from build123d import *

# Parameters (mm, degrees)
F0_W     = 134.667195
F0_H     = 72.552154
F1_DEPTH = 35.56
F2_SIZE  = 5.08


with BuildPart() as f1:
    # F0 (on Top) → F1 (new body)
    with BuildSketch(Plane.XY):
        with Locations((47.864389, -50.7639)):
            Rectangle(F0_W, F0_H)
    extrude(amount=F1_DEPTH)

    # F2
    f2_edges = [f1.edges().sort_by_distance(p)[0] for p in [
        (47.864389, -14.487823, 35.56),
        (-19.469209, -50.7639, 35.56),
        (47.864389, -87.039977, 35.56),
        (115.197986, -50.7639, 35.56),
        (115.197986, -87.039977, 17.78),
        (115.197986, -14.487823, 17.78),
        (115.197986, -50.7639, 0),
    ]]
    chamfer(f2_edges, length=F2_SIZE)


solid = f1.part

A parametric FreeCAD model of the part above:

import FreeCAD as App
import Part
import Sketcher
Q = App.Units.Quantity


def edges_at(feature, points):
    """Names of the edges that pass closest to the given points."""
    edges = feature.Shape.Edges
    near = lambda p: min(range(len(edges)), key=lambda i: edges[i].distToShape(Part.Vertex(*p))[0])
    return sorted({f"Edge{near(p) + 1}" for p in points})


def add_polygon(sketch, points):
    """Adds a closed chain of lines whose ends are joined by coincident constraints."""
    first, n = sketch.GeometryCount, len(points)
    for a, b in zip(points, points[1:] + points[:1]):
        sketch.addGeometry(Part.LineSegment(App.Vector(*a, 0), App.Vector(*b, 0)), False)
    for i in range(n):
        sketch.addConstraint(Sketcher.Constraint("Coincident", first + i, 2, first + (i + 1) % n, 1))

doc = App.newDocument("Part")
body = doc.addObject("PartDesign::Body", "Body")

# Sketch on XY plane
sketch1 = body.newObject("Sketcher::SketchObject", "Sketch")
sketch1.AttachmentSupport = (doc.getObject("XY_Plane"), [""])
sketch1.MapMode = "FlatFace"
add_polygon(sketch1, [(-19, -14), (-19, -87), (115, -87), (115, -14)])  # lines 0-3
sketch1.addConstraint(Sketcher.Constraint("Vertical", 0))
sketch1.addConstraint(Sketcher.Constraint("Horizontal", 1))
sketch1.addConstraint(Sketcher.Constraint("Vertical", 2))
sketch1.addConstraint(Sketcher.Constraint("Horizontal", 3))
sketch1.addConstraint(Sketcher.Constraint("DistanceX", 1, 1, 1, 2, Q("134.667195 mm")))
sketch1.addConstraint(Sketcher.Constraint("DistanceY", 0, 2, 0, 1, Q("72.552154 mm")))
sketch1.addConstraint(Sketcher.Constraint("DistanceX", 0, 2, -1, 1, Q("19.469209 mm")))
sketch1.addConstraint(Sketcher.Constraint("DistanceY", 0, 2, -1, 1, Q("87.039977 mm")))
pad1 = body.newObject("PartDesign::Pad", "Pad")
pad1.Profile = sketch1
pad1.Length = Q("1.4 in")
doc.recompute()

chamfer = body.newObject("PartDesign::Chamfer", "Chamfer")
chamfer.Base = (pad1, edges_at(pad1, [
    (47.864, -14.488, 35.56),
    (-19.469, -50.764, 35.56),
    (47.864, -87.04, 35.56),
    (115.198, -50.764, 35.56),
    (115.198, -87.04, 17.78),
    (115.198, -14.488, 17.78),
    (115.198, -50.764, 0),
]))
chamfer.Size = Q("0.2 in")

doc.recompute()
